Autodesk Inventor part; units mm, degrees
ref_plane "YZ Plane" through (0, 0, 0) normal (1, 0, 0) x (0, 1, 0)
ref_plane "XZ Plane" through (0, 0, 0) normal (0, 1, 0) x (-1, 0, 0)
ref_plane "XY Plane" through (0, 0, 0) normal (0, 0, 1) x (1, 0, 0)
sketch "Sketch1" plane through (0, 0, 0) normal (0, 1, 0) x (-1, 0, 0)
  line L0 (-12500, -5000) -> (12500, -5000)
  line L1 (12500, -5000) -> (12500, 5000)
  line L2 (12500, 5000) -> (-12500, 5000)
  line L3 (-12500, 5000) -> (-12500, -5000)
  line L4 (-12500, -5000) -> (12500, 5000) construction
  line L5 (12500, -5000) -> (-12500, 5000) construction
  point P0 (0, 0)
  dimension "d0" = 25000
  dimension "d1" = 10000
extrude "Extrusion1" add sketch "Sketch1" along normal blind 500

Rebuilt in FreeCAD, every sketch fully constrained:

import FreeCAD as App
import Part
import Sketcher

V = App.Vector

doc = App.newDocument("Part")
body = doc.addObject("PartDesign::Body", "Body")

sketch1 = doc.addObject("Sketcher::SketchObject", "Sketch")
body.addObject(sketch1)
sketch1.AttachmentSupport = (doc.XZ_Plane, [""])
sketch1.MapMode = "FlatFace"
sketch1.addGeometry(Part.LineSegment(V(12500, 5000, 0), V(12500, -5000, 0)), False)
sketch1.addGeometry(Part.LineSegment(V(12500, -5000, 0), V(-12500, -5000, 0)), False)
sketch1.addGeometry(Part.LineSegment(V(-12500, -5000, 0), V(-12500, 5000, 0)), False)
sketch1.addGeometry(Part.LineSegment(V(-12500, 5000, 0), V(12500, 5000, 0)), False)
sketch1.addConstraint(Sketcher.Constraint("Coincident", 0, 2, 1, 1))
sketch1.addConstraint(Sketcher.Constraint("Coincident", 1, 2, 2, 1))
sketch1.addConstraint(Sketcher.Constraint("Coincident", 2, 2, 3, 1))
sketch1.addConstraint(Sketcher.Constraint("Coincident", 3, 2, 0, 1))
sketch1.addConstraint(Sketcher.Constraint("Vertical", 0))
sketch1.addConstraint(Sketcher.Constraint("Horizontal", 1))
sketch1.addConstraint(Sketcher.Constraint("Vertical", 2))
sketch1.addConstraint(Sketcher.Constraint("Horizontal", 3))
sketch1.addConstraint(Sketcher.Constraint("Symmetric", 0, 2, 2, 2, -1, 1))
sketch1.addConstraint(Sketcher.Constraint("DistanceX", 1, 2, 1, 1, 25000.0))
sketch1.addConstraint(Sketcher.Constraint("DistanceY", 0, 2, 0, 1, 10000.0))
pad1 = doc.addObject("PartDesign::Pad", "Pad")
body.addObject(pad1)
pad1.Profile = sketch1
pad1.Length = 500
pad1.Reversed = True

doc.recompute()
